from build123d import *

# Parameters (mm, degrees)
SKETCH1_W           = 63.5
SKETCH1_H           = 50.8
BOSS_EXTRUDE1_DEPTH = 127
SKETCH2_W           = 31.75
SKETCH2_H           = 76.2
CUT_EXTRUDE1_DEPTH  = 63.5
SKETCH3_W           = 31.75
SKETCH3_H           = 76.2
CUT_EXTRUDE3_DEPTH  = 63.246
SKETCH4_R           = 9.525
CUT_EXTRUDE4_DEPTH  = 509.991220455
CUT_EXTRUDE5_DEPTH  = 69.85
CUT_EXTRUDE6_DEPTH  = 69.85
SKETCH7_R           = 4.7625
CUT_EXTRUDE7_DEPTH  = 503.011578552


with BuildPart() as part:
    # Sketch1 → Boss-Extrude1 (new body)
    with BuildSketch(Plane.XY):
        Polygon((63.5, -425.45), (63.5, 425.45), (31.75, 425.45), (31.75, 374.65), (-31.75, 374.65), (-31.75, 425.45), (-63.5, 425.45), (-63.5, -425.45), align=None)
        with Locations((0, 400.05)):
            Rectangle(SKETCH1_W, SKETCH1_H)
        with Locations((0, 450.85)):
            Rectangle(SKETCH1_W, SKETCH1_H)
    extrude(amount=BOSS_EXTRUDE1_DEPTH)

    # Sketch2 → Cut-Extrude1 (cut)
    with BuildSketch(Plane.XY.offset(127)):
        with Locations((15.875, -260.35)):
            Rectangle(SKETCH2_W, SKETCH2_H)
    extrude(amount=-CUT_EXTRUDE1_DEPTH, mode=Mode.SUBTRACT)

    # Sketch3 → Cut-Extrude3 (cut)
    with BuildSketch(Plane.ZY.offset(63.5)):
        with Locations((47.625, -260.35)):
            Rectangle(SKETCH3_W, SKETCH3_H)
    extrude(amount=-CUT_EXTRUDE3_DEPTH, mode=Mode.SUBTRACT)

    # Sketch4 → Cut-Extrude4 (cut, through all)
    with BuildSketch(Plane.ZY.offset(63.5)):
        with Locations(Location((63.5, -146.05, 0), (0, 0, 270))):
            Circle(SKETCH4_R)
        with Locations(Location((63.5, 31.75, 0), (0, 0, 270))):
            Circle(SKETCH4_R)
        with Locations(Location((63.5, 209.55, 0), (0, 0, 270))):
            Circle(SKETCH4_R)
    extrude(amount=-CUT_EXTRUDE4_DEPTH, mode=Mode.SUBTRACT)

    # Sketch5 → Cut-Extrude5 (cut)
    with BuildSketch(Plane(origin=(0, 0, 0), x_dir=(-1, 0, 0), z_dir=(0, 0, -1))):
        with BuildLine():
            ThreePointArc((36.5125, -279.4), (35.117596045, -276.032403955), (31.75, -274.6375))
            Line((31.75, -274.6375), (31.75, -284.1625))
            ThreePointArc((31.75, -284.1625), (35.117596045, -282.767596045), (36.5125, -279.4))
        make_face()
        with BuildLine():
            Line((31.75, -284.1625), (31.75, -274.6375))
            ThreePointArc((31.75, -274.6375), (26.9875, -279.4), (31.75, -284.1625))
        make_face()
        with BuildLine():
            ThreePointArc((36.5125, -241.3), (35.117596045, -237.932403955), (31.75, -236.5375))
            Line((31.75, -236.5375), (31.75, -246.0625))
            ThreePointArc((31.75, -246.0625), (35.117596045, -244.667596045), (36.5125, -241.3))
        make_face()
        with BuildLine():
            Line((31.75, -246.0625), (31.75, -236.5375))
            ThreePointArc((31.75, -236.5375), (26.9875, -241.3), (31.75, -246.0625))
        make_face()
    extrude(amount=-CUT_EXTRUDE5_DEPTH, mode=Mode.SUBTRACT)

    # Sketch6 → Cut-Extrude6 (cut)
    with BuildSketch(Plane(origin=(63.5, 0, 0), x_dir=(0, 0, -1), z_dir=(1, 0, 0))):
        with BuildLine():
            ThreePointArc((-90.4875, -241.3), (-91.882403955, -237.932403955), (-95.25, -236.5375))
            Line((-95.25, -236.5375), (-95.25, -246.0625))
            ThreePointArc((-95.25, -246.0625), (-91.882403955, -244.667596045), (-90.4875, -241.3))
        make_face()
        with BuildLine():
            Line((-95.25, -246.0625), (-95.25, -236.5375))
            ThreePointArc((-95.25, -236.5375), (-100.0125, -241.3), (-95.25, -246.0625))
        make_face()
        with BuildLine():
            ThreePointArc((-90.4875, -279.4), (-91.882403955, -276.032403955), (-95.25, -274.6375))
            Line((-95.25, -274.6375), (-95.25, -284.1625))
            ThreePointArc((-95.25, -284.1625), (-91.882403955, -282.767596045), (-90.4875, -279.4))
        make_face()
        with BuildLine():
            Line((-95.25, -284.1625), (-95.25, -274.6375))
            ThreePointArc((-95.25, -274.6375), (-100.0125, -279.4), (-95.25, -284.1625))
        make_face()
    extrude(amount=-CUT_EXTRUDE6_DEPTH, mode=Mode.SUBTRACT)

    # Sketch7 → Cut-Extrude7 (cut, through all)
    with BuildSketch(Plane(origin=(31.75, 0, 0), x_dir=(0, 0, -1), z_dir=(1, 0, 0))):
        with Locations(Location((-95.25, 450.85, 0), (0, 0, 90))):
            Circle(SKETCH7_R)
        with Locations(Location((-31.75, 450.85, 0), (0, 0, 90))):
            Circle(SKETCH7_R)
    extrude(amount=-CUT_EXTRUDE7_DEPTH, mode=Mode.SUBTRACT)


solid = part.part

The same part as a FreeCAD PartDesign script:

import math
import FreeCAD as App
import Part
import Sketcher
from FreeCAD import Vector
Q = App.Units.Quantity


def add_polygon(sketch, points):
    """Adds a closed chain of lines whose ends are joined by coincident constraints."""
    first, n = sketch.GeometryCount, len(points)
    for a, b in zip(points, points[1:] + points[:1]):
        sketch.addGeometry(Part.LineSegment(App.Vector(*a, 0), App.Vector(*b, 0)), False)
    for i in range(n):
        sketch.addConstraint(Sketcher.Constraint("Coincident", first + i, 2, first + (i + 1) % n, 1))

doc = App.newDocument("Part")
body = doc.addObject("PartDesign::Body", "Body")

# Sketch on XY plane
sketch1 = doc.addObject("Sketcher::SketchObject", "Sketch")
body.addObject(sketch1)
sketch1.AttachmentSupport = (doc.XY_Plane, [""])
sketch1.MapMode = "FlatFace"
add_polygon(sketch1, [(64, -425), (64, 425), (32, 425), (32, 476), (-32, 476), (-32, 425), (-64, 425), (-64, -425)])  # lines 0-7
sketch1.addConstraint([
    Sketcher.Constraint("Vertical", 0),
    Sketcher.Constraint("Horizontal", 1),
    Sketcher.Constraint("Vertical", 2),
    Sketcher.Constraint("Horizontal", 3),
    Sketcher.Constraint("Vertical", 4),
    Sketcher.Constraint("Horizontal", 5),
    Sketcher.Constraint("Vertical", 6),
    Sketcher.Constraint("Horizontal", 7),
    Sketcher.Constraint("Symmetric", 0, 2, 6, 2, -1, 1),
    Sketcher.Constraint("Symmetric", 1, 2, 4, 2, -2),
    Sketcher.Constraint("DistanceX", 7, 1, 7, 2, Q("5 in")),
    Sketcher.Constraint("DistanceY", 2, 1, 2, 2, Q("2 in")),
    Sketcher.Constraint("DistanceX", 3, 2, 3, 1, Q("2.5 in")),
    Sketcher.Constraint("DistanceY", 0, 1, 0, 2, Q("33.5 in")),
])
pad1 = doc.addObject("PartDesign::Pad", "Pad")
body.addObject(pad1)
pad1.Profile = sketch1
pad1.Length = Q("5 in")

# Sketch on XY plane
sketch2 = doc.addObject("Sketcher::SketchObject", "Sketch001")
body.addObject(sketch2)
sketch2.AttachmentSupport = (doc.XY_Plane, [""])
sketch2.MapMode = "FlatFace"
sketch2.AttachmentOffset = App.Placement(Vector(0, 0, 5 * 25.4), App.Rotation())
add_polygon(sketch2, [(0, -222), (0, -298), (32, -298), (32, -222)])  # lines 0-3
sketch2.addConstraint([
    Sketcher.Constraint("Vertical", 0),
    Sketcher.Constraint("Horizontal", 1),
    Sketcher.Constraint("Vertical", 2),
    Sketcher.Constraint("Horizontal", 3),
    Sketcher.Constraint("PointOnObject", 0, 2, -2),
    Sketcher.Constraint("DistanceY", 0, 2, 0, 1, Q("3 in")),
    Sketcher.Constraint("DistanceX", 1, 1, 1, 2, Q("1.25 in")),
    Sketcher.Constraint("DistanceY", 0, 2, -1, 1, Q("11.75 in")),
])
pocket1 = doc.addObject("PartDesign::Pocket", "Pocket")
body.addObject(pocket1)
pocket1.Profile = sketch2
pocket1.Length = Q("2.5 in")

# Sketch on YZ plane
sketch3 = doc.addObject("Sketcher::SketchObject", "Sketch002")
body.addObject(sketch3)
sketch3.AttachmentSupport = (doc.YZ_Plane, [""])
sketch3.MapMode = "FlatFace"
sketch3.AttachmentOffset = App.Placement(Vector(0, 0, -2.5 * 25.4), App.Rotation())
add_polygon(sketch3, [(-222, 32), (-298, 32), (-298, 64), (-222, 64)])  # lines 0-3
sketch3.addConstraint([
    Sketcher.Constraint("Horizontal", 0),
    Sketcher.Constraint("Vertical", 1),
    Sketcher.Constraint("Horizontal", 2),
    Sketcher.Constraint("Vertical", 3),
    Sketcher.Constraint("DistanceX", 0, 2, 0, 1, Q("3 in")),
    Sketcher.Constraint("DistanceY", 1, 1, 1, 2, Q("1.25 in")),
    Sketcher.Constraint("DistanceY", -1, 1, 1, 2, Q("2.5 in")),
    Sketcher.Constraint("DistanceX", 0, 2, -1, 1, Q("11.75 in")),
])
pocket2 = doc.addObject("PartDesign::Pocket", "Pocket001")
body.addObject(pocket2)
pocket2.Profile = sketch3
pocket2.Length = Q("2.49 in")
pocket2.Reversed = True

# Sketch on YZ plane
sketch4 = doc.addObject("Sketcher::SketchObject", "Sketch003")
body.addObject(sketch4)
sketch4.AttachmentSupport = (doc.YZ_Plane, [""])
sketch4.MapMode = "FlatFace"
sketch4.AttachmentOffset = App.Placement(Vector(0, 0, -2.5 * 25.4), App.Rotation())
sketch4.addGeometry([
    Part.Circle(Vector(-146, 64, 0), Vector(0, 0, 1), 10),
    Part.Circle(Vector(32, 64, 0), Vector(0, 0, 1), 10),
    Part.Circle(Vector(210, 64, 0), Vector(0, 0, 1), 10),
], False)
sketch4.addConstraint([
    Sketcher.Constraint("Equal", 0, 1),
    Sketcher.Constraint("Equal", 1, 2),
    Sketcher.Constraint("Horizontal", 0, 3, 1, 3),
    Sketcher.Constraint("Horizontal", 1, 3, 2, 3),
    Sketcher.Constraint("Diameter", 0, Q("0.75 in")),
    Sketcher.Constraint("DistanceX", 0, 3, 1, 3, Q("7 in")),
    Sketcher.Constraint("DistanceX", 1, 3, 2, 3, Q("7 in")),
    Sketcher.Constraint("DistanceY", -1, 1, 0, 3, Q("2.5 in")),
    Sketcher.Constraint("DistanceX", 0, 3, -1, 1, Q("5.75 in")),
])
pocket3 = doc.addObject("PartDesign::Pocket", "Pocket002")
body.addObject(pocket3)
pocket3.Profile = sketch4
pocket3.Type = "ThroughAll"
pocket3.Reversed = True

# Sketch on XY plane
sketch5 = doc.addObject("Sketcher::SketchObject", "Sketch004")
body.addObject(sketch5)
sketch5.AttachmentSupport = (doc.XY_Plane, [""])
sketch5.MapMode = "FlatFace"
sketch5.addGeometry([
    Part.ArcOfCircle(Part.Circle(Vector(-31.7, -279.4, 0), Vector(0, 0, 1), 4.8), math.radians(90), math.radians(180)),  # 0
    Part.ArcOfCircle(Part.Circle(Vector(-31.8, -279.4, 0), Vector(0, 0, 1), 4.8), math.radians(-90), math.radians(90)),  # 1
    Part.ArcOfCircle(Part.Circle(Vector(-31.7, -279.4, 0), Vector(0, 0, 1), 4.8), math.radians(-180), math.radians(-90)),  # 2
    Part.ArcOfCircle(Part.Circle(Vector(-31.7, -241.3, 0), Vector(0, 0, 1), 4.8), math.radians(90), math.radians(180)),  # 3
    Part.ArcOfCircle(Part.Circle(Vector(-31.8, -241.3, 0), Vector(0, 0, 1), 4.8), math.radians(-90), math.radians(90)),  # 4
    Part.ArcOfCircle(Part.Circle(Vector(-31.7, -241.3, 0), Vector(0, 0, 1), 4.8), math.radians(-180), math.radians(-90)),  # 5
], False)
sketch5.addConstraint([
    Sketcher.Constraint("Tangent", 0, 1, 1, 2),
    Sketcher.Constraint("Tangent", 1, 1, 2, 2),
    Sketcher.Constraint("Tangent", 2, 1, 0, 2),
    Sketcher.Constraint("Tangent", 3, 1, 4, 2),
    Sketcher.Constraint("Tangent", 4, 1, 5, 2),
    Sketcher.Constraint("Tangent", 5, 1, 3, 2),
    Sketcher.Constraint("Equal", 2, 3),
    Sketcher.Constraint("Horizontal", 1, 3, 2, 1),
    Sketcher.Constraint("Horizontal", 4, 3, 5, 1),
    Sketcher.Constraint("Vertical", 2, 3, 3, 3),
    Sketcher.Constraint("Vertical", 5, 3, 0, 1),
    Sketcher.Constraint("Vertical", 0, 1, 1, 1),
    Sketcher.Constraint("Vertical", 1, 1, 3, 1),
    Sketcher.Constraint("Vertical", 3, 1, 4, 1),
    Sketcher.Constraint("DistanceY", 0, 3, -1, 1, Q("11 in")),
    Sketcher.Constraint("Radius", 0, Q("0.1875 in")),
    Sketcher.Constraint("DistanceY", 3, 3, -1, 1, Q("9.5 in")),
    Sketcher.Constraint("DistanceX", 0, 3, -1, 1, Q("1.25 in")),
])
pocket4 = doc.addObject("PartDesign::Pocket", "Pocket003")
body.addObject(pocket4)
pocket4.Profile = sketch5
pocket4.Length = Q("2.75 in")
pocket4.Reversed = True

# Sketch on YZ plane
sketch6 = doc.addObject("Sketcher::SketchObject", "Sketch005")
body.addObject(sketch6)
sketch6.AttachmentSupport = (doc.YZ_Plane, [""])
sketch6.MapMode = "FlatFace"
sketch6.AttachmentOffset = App.Placement(Vector(0, 0, 2.5 * 25.4), App.Rotation())
sketch6.addGeometry([
    Part.ArcOfCircle(Part.Circle(Vector(-241.3, 95.3, 0), Vector(0, 0, 1), 4.8), math.radians(-90), math.radians(0)),  # 0
    Part.ArcOfCircle(Part.Circle(Vector(-241.3, 95.2, 0), Vector(0, 0, 1), 4.8), math.radians(0), math.radians(180)),  # 1
    Part.ArcOfCircle(Part.Circle(Vector(-241.3, 95.3, 0), Vector(0, 0, 1), 4.8), math.radians(-180), math.radians(-90)),  # 2
    Part.ArcOfCircle(Part.Circle(Vector(-279.4, 95.3, 0), Vector(0, 0, 1), 4.8), math.radians(-90), math.radians(0)),  # 3
    Part.ArcOfCircle(Part.Circle(Vector(-279.4, 95.2, 0), Vector(0, 0, 1), 4.8), math.radians(0), math.radians(180)),  # 4
    Part.ArcOfCircle(Part.Circle(Vector(-279.4, 95.3, 0), Vector(0, 0, 1), 4.8), math.radians(-180), math.radians(-90)),  # 5
], False)
sketch6.addConstraint([
    Sketcher.Constraint("Tangent", 0, 2, 1, 1),
    Sketcher.Constraint("Tangent", 1, 2, 2, 1),
    Sketcher.Constraint("Tangent", 2, 2, 0, 1),
    Sketcher.Constraint("Tangent", 3, 2, 4, 1),
    Sketcher.Constraint("Tangent", 4, 2, 5, 1),
    Sketcher.Constraint("Tangent", 5, 2, 3, 1),
    Sketcher.Constraint("Equal", 2, 3),
    Sketcher.Constraint("Horizontal", 2, 3, 3, 3),
    Sketcher.Constraint("Horizontal", 5, 3, 0, 2),
    Sketcher.Constraint("Horizontal", 0, 2, 1, 2),
    Sketcher.Constraint("Horizontal", 1, 2, 3, 2),
    Sketcher.Constraint("Horizontal", 3, 2, 4, 2),
    Sketcher.Constraint("Vertical", 1, 3, 2, 2),
    Sketcher.Constraint("Vertical", 4, 3, 5, 2),
    Sketcher.Constraint("DistanceX", 3, 3, -1, 1, Q("11 in")),
    Sketcher.Constraint("Radius", 0, Q("0.1875 in")),
    Sketcher.Constraint("DistanceX", 0, 3, -1, 1, Q("9.5 in")),
    Sketcher.Constraint("DistanceY", -1, 1, 0, 3, Q("3.75 in")),
])
pocket5 = doc.addObject("PartDesign::Pocket", "Pocket004")
body.addObject(pocket5)
pocket5.Profile = sketch6
pocket5.Length = Q("2.75 in")

# Sketch on YZ plane
sketch7 = doc.addObject("Sketcher::SketchObject", "Sketch006")
body.addObject(sketch7)
sketch7.AttachmentSupport = (doc.YZ_Plane, [""])
sketch7.MapMode = "FlatFace"
sketch7.AttachmentOffset = App.Placement(Vector(0, 0, 1.25 * 25.4), App.Rotation())
sketch7.addGeometry([
    Part.Circle(Vector(450.9, 95.2, 0), Vector(0, 0, 1), 4.8),
    Part.Circle(Vector(450.9, 31.8, 0), Vector(0, 0, 1), 4.8),
], False)
sketch7.addConstraint([
    Sketcher.Constraint("Equal", 0, 1),
    Sketcher.Constraint("Vertical", 0, 3, 1, 3),
    Sketcher.Constraint("Diameter", 0, Q("0.375 in")),
    Sketcher.Constraint("DistanceY", 1, 3, 0, 3, Q("2.5 in")),
    Sketcher.Constraint("DistanceX", -1, 1, 0, 3, Q("17.75 in")),
    Sketcher.Constraint("DistanceY", -1, 1, 0, 3, Q("3.75 in")),
])
pocket6 = doc.addObject("PartDesign::Pocket", "Pocket005")
body.addObject(pocket6)
pocket6.Profile = sketch7
pocket6.Type = "ThroughAll"

doc.recompute()
